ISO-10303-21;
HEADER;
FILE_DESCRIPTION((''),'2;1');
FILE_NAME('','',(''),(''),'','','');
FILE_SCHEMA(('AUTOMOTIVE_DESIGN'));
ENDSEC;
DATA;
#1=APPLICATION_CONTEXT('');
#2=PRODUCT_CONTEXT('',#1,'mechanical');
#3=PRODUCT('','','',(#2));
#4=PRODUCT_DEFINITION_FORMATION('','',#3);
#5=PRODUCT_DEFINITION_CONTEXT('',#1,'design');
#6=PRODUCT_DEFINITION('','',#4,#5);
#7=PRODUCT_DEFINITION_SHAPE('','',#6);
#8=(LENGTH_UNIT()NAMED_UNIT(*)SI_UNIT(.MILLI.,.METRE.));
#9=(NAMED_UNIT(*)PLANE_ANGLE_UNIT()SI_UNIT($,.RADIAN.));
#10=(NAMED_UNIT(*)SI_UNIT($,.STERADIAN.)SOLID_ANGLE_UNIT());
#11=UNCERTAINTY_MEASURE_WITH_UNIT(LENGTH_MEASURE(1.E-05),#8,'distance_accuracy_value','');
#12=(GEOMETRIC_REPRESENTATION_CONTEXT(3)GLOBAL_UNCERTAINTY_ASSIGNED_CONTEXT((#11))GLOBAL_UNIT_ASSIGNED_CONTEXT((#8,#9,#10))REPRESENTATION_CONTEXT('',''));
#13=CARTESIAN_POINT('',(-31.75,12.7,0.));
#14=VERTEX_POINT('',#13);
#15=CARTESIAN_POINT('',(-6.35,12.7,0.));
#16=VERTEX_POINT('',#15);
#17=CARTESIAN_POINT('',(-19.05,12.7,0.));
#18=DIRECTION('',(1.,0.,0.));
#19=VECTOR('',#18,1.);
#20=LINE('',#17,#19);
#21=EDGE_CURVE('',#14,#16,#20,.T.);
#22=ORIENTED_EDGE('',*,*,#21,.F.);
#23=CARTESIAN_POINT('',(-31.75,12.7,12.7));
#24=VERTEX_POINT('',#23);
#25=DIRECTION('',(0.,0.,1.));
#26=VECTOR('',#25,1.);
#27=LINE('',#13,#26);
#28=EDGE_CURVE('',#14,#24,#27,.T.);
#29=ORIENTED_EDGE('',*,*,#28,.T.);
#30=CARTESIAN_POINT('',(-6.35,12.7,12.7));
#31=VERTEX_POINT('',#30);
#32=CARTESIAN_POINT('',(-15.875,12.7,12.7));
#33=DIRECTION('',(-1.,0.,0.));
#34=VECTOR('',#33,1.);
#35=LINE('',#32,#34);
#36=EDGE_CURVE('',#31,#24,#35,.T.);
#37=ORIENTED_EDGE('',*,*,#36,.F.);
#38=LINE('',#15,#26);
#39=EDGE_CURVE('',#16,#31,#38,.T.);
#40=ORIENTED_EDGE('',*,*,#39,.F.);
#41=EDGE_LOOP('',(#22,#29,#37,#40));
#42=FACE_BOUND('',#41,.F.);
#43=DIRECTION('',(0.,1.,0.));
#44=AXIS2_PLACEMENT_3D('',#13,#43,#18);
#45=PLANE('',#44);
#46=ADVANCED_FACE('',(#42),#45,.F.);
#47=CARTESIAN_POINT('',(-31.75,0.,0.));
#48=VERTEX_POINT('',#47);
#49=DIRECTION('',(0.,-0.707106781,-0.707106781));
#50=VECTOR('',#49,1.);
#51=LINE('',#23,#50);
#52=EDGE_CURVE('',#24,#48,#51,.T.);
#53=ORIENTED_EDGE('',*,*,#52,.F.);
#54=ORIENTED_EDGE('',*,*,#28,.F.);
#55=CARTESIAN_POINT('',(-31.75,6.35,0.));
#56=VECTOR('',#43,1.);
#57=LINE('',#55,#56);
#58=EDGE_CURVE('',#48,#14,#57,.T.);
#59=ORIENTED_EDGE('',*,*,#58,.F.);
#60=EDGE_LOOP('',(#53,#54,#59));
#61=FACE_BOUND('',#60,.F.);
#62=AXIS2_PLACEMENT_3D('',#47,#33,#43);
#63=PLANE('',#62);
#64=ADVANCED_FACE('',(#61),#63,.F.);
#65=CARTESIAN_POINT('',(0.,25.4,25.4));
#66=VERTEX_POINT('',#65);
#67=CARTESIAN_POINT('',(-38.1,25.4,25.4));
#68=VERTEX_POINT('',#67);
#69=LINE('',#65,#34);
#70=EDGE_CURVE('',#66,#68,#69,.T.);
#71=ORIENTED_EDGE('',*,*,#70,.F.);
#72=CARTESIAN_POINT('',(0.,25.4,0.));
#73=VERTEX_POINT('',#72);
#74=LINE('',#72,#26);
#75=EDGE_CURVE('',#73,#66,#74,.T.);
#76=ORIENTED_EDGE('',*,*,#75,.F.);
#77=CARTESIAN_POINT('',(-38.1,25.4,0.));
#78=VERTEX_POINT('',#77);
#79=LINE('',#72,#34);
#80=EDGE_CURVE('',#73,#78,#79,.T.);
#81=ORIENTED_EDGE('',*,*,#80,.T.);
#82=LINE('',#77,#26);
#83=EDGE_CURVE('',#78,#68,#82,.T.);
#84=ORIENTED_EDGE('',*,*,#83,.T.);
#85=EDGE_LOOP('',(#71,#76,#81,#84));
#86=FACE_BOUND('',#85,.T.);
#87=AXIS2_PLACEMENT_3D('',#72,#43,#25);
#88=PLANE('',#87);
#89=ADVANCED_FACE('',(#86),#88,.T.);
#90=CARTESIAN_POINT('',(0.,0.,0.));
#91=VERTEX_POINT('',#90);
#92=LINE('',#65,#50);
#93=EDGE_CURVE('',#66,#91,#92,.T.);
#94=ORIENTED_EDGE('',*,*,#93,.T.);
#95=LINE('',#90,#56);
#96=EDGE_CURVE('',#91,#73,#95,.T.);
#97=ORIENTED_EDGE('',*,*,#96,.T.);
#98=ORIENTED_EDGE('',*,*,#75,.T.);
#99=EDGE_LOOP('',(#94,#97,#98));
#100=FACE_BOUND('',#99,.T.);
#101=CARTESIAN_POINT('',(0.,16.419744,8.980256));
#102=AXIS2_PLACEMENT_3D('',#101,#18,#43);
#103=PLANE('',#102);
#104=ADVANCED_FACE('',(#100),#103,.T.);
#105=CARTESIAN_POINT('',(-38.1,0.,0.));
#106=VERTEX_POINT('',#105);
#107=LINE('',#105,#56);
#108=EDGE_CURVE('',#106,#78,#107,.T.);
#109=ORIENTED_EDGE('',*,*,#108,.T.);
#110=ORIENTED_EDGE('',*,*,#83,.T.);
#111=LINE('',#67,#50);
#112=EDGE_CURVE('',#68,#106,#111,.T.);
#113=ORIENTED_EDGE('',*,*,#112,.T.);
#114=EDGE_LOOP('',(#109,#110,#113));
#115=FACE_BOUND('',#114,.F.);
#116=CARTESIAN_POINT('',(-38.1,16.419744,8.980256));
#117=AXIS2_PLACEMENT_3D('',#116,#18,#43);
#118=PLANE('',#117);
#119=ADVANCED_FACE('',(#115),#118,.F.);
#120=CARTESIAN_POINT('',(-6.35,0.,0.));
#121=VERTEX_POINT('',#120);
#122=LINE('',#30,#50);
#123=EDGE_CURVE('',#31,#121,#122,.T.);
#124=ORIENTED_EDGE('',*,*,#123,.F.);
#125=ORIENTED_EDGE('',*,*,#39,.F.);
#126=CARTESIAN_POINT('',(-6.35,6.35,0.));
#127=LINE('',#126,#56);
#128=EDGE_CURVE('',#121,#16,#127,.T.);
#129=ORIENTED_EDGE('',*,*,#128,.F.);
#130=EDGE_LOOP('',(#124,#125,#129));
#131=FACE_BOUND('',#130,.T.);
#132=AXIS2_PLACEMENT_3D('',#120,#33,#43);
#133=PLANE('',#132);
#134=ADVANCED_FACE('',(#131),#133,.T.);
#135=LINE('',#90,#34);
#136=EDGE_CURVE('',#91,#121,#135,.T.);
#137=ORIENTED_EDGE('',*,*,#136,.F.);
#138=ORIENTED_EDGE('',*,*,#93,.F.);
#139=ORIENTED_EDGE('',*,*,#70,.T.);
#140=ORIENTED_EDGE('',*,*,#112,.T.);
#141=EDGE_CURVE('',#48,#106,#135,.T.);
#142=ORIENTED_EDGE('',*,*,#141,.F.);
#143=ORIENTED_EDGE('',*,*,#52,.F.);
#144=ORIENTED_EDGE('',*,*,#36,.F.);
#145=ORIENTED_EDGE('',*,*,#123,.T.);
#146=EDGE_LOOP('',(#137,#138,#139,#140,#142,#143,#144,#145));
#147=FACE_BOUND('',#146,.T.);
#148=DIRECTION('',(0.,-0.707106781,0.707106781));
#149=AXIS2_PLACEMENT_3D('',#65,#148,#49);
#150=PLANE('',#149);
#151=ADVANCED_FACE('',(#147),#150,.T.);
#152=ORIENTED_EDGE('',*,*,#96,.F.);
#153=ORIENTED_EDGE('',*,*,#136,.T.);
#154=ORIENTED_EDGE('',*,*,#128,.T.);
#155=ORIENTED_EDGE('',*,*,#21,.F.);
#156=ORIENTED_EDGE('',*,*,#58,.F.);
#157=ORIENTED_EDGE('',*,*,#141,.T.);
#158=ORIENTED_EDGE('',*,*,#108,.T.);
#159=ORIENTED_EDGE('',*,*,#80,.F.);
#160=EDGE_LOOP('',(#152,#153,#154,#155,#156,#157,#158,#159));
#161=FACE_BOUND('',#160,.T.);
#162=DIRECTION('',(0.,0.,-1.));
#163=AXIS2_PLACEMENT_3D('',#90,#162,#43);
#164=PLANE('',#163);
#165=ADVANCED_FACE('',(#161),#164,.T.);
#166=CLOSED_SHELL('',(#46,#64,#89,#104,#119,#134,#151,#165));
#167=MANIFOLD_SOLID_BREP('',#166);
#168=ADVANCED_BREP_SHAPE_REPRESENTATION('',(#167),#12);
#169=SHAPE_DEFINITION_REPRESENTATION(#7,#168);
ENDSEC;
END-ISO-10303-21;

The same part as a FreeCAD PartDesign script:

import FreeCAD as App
import Part
import Sketcher

V = App.Vector
Q = App.Units.Quantity


def add_polygon(sketch, points):
    """Adds a closed chain of lines whose ends are joined by coincident constraints."""
    first, n = sketch.GeometryCount, len(points)
    for a, b in zip(points, points[1:] + points[:1]):
        sketch.addGeometry(Part.LineSegment(App.Vector(*a, 0), App.Vector(*b, 0)), False)
    for i in range(n):
        sketch.addConstraint(Sketcher.Constraint("Coincident", first + i, 2, first + (i + 1) % n, 1))

doc = App.newDocument("Part")
body = doc.addObject("PartDesign::Body", "Body")

sketch1 = body.newObject("Sketcher::SketchObject", "Sketch")
sketch1.AttachmentSupport = (doc.getObject("YZ_Plane"), [""])
sketch1.MapMode = "FlatFace"
add_polygon(sketch1, [(25, 25), (0, 0), (25, 0)])
sketch1.addConstraint(Sketcher.Constraint("Horizontal", 1))
sketch1.addConstraint(Sketcher.Constraint("Vertical", 2))
sketch1.addConstraint(Sketcher.Constraint("Coincident", 0, 2, -1, 1))
sketch1.addConstraint(Sketcher.Constraint("Equal", 1, 2))
sketch1.addConstraint(Sketcher.Constraint("DistanceX", 1, 1, 1, 2, Q("1 in")))
pad1 = body.newObject("PartDesign::Pad", "Pad")
pad1.Profile = sketch1
pad1.Length = Q("1.5 in")
pad1.Reversed = True

sketch2 = body.newObject("Sketcher::SketchObject", "Sketch001")
sketch2.AttachmentSupport = (doc.getObject("XY_Plane"), [""])
sketch2.MapMode = "FlatFace"
add_polygon(sketch2, [(-32, 13), (-32, 0), (-6, 0), (-6, 13)])
sketch2.addConstraint(Sketcher.Constraint("Vertical", 0))
sketch2.addConstraint(Sketcher.Constraint("Horizontal", 1))
sketch2.addConstraint(Sketcher.Constraint("Vertical", 2))
sketch2.addConstraint(Sketcher.Constraint("Horizontal", 3))
sketch2.addConstraint(Sketcher.Constraint("PointOnObject", 0, 2, -1))
sketch2.addConstraint(Sketcher.Constraint("DistanceX", 1, 1, 1, 2, Q("1 in")))
sketch2.addConstraint(Sketcher.Constraint("DistanceY", 0, 2, 0, 1, Q("0.5 in")))
sketch2.addConstraint(Sketcher.Constraint("DistanceX", 0, 2, -1, 1, Q("1.25 in")))
pocket1 = body.newObject("PartDesign::Pocket", "Pocket")
pocket1.Profile = sketch2
pocket1.Type = "ThroughAll"
pocket1.Reversed = True

doc.recompute()
